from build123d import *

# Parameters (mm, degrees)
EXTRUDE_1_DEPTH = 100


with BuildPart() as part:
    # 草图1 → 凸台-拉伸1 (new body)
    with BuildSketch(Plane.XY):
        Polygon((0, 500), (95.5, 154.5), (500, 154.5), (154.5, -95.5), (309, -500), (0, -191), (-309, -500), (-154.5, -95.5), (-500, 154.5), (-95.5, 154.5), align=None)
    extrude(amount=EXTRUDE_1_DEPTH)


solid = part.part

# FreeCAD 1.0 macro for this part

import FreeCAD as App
import Part
import Sketcher

V = App.Vector
Q = App.Units.Quantity

doc = App.newDocument("Part")
params = doc.addObject("Spreadsheet::Sheet", "Params")
for row, (alias, value) in enumerate([
    ("sketch1_width", "404.5 mm"),
    ("pad1_length", "100 mm"),
], start=1):
    params.set(f"A{row}", alias)
    params.set(f"B{row}", "=" + value)
    params.setAlias(f"B{row}", alias)

body = doc.addObject("PartDesign::Body", "Body")

# Sketch on XY plane
sketch1 = body.newObject("Sketcher::SketchObject", "Sketch")
sketch1.AttachmentSupport = (doc.getObject("XY_Plane"), [""])
sketch1.MapMode = "FlatFace"
sketch1.addGeometry(Part.LineSegment(V(96, 154, 0), V(0, 500, 0)), False)
sketch1.addGeometry(Part.LineSegment(V(0, 500, 0), V(-96, 154, 0)), False)
sketch1.addGeometry(Part.LineSegment(V(-96, 154, 0), V(-500, 154, 0)), False)
sketch1.addGeometry(Part.LineSegment(V(-500, 154, 0), V(-154, -96, 0)), False)
sketch1.addGeometry(Part.LineSegment(V(-154, -96, 0), V(-309, -500, 0)), False)
sketch1.addGeometry(Part.LineSegment(V(-309, -500, 0), V(0, -191, 0)), False)
sketch1.addGeometry(Part.LineSegment(V(0, -191, 0), V(309, -500, 0)), False)
sketch1.addGeometry(Part.LineSegment(V(309, -500, 0), V(154, -96, 0)), False)
sketch1.addGeometry(Part.LineSegment(V(154, -96, 0), V(500, 154, 0)), False)
sketch1.addGeometry(Part.LineSegment(V(500, 154, 0), V(96, 154, 0)), False)
sketch1.addConstraint(Sketcher.Constraint("Coincident", 0, 2, 1, 1))
sketch1.addConstraint(Sketcher.Constraint("Coincident", 1, 2, 2, 1))
sketch1.addConstraint(Sketcher.Constraint("Coincident", 2, 2, 3, 1))
sketch1.addConstraint(Sketcher.Constraint("Coincident", 3, 2, 4, 1))
sketch1.addConstraint(Sketcher.Constraint("Coincident", 4, 2, 5, 1))
sketch1.addConstraint(Sketcher.Constraint("Coincident", 5, 2, 6, 1))
sketch1.addConstraint(Sketcher.Constraint("Coincident", 6, 2, 7, 1))
sketch1.addConstraint(Sketcher.Constraint("Coincident", 7, 2, 8, 1))
sketch1.addConstraint(Sketcher.Constraint("Coincident", 8, 2, 9, 1))
sketch1.addConstraint(Sketcher.Constraint("Coincident", 9, 2, 0, 1))
sketch1.addConstraint(Sketcher.Constraint("Horizontal", 2))
sketch1.addConstraint(Sketcher.Constraint("Horizontal", 9))
sketch1.addConstraint(Sketcher.Constraint("Symmetric", 4, 2, 6, 2, -2))
sketch1.addConstraint(Sketcher.Constraint("Symmetric", 3, 2, 7, 2, -2))
sketch1.addConstraint(Sketcher.Constraint("Symmetric", 2, 2, 8, 2, -2))
sketch1.addConstraint(Sketcher.Constraint("PointOnObject", 0, 2, -2))
sketch1.addConstraint(Sketcher.Constraint("PointOnObject", 5, 2, -2))
sketch1.addConstraint(Sketcher.Constraint("Perpendicular", 5, 6))
sketch1.addConstraint(Sketcher.Constraint("Equal", 2, 9))
sketch1.addConstraint(Sketcher.Constraint("DistanceX", 2, 2, 2, 1, Q("404.5 mm")))
sketch1.addConstraint(Sketcher.Constraint("DistanceY", -1, 1, 0, 2, Q("500 mm")))
sketch1.addConstraint(Sketcher.Constraint("DistanceX", 2, 2, -1, 1, Q("500 mm")))
sketch1.addConstraint(Sketcher.Constraint("DistanceX", 4, 2, -1, 1, Q("309 mm")))
sketch1.addConstraint(Sketcher.Constraint("DistanceY", 4, 2, -1, 1, Q("500 mm")))
sketch1.addConstraint(Sketcher.Constraint("DistanceX", 3, 2, 1, 2, Q("59 mm")))
sketch1.addConstraint(Sketcher.Constraint("DistanceY", 3, 2, 1, 2, Q("250 mm")))
sketch1.addConstraint(Sketcher.Constraint("DistanceY", -1, 1, 1, 2, Q("154.5 mm")))
sketch1.setExpression("Constraints[19]", "Params.sketch1_width")
pad1 = body.newObject("PartDesign::Pad", "Pad")
pad1.Profile = sketch1
pad1.setExpression("Length", "Params.pad1_length")

doc.recompute()
